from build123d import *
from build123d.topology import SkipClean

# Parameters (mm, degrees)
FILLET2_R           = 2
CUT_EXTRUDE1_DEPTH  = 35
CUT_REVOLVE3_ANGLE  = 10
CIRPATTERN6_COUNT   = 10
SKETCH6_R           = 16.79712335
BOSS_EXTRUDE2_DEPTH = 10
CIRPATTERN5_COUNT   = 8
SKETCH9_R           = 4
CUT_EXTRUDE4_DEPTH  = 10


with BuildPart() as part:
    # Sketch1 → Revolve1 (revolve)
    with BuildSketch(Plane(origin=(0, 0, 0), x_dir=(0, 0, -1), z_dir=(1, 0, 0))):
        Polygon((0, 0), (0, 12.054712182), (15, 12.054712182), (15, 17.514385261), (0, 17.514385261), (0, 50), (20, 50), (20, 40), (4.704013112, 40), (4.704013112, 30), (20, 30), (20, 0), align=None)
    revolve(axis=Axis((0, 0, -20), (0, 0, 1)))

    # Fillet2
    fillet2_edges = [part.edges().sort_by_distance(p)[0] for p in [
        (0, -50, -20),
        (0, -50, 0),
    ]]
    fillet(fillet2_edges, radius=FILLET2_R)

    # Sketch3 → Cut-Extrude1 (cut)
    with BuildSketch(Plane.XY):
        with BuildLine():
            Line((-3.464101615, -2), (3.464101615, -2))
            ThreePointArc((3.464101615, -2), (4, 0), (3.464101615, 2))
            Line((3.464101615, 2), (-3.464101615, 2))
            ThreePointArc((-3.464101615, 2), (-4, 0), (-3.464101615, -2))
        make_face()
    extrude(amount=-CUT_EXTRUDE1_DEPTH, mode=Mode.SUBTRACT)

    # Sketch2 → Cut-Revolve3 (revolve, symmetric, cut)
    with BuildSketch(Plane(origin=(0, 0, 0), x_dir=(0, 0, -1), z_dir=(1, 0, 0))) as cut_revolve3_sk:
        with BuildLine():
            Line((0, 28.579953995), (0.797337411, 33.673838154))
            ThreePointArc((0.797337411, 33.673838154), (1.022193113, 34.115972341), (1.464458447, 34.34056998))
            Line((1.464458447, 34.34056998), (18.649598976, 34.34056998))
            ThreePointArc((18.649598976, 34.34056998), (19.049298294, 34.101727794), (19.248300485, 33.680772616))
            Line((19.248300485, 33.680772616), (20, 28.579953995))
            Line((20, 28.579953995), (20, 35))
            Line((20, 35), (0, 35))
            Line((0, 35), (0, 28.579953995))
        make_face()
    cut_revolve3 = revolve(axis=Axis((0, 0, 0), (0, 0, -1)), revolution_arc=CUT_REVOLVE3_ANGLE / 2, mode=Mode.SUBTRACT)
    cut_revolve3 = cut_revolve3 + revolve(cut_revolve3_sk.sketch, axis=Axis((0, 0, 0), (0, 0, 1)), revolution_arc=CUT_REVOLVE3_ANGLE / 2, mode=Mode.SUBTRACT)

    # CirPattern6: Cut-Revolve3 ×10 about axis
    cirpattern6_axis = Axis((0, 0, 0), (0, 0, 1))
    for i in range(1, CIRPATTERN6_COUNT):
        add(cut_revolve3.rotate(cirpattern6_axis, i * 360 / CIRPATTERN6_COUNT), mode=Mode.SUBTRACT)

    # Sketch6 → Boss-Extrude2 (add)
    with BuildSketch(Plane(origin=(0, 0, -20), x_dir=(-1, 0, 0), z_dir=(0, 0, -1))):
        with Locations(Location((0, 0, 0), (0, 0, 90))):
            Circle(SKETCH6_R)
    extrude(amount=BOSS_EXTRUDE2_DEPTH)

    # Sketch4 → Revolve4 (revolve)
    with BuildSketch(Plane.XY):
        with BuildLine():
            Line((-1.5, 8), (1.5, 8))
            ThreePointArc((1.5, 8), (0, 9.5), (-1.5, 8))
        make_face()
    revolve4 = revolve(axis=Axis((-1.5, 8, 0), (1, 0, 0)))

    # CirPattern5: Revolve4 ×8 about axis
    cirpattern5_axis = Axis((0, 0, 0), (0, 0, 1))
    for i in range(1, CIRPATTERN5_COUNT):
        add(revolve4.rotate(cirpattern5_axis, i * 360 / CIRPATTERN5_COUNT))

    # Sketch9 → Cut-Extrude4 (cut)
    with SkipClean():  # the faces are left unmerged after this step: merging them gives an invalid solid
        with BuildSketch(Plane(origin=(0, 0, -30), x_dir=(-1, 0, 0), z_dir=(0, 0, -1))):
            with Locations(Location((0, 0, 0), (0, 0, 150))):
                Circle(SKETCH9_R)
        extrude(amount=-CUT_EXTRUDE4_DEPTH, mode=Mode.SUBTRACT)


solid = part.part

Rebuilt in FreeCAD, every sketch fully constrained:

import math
import FreeCAD as App
import Part
import Sketcher


def edges_at(feature, points):
    """Names of the edges that pass closest to the given points."""
    edges = feature.Shape.Edges
    near = lambda p: min(range(len(edges)), key=lambda i: edges[i].distToShape(Part.Vertex(*p))[0])
    return sorted({f"Edge{near(p) + 1}" for p in points})

doc = App.newDocument("Part")
body = doc.addObject("PartDesign::Body", "Body")

# Sketch on YZ plane
sketch1 = body.newObject("Sketcher::SketchObject", "Sketch")
sketch1.AttachmentSupport = (doc.getObject("YZ_Plane"), [""])
sketch1.MapMode = "FlatFace"
sketch1.addGeometry([
    Part.LineSegment(App.Vector(12, 0, 0), App.Vector(0, 0, 0)),  # 0
    Part.LineSegment(App.Vector(0, 0, 0), App.Vector(0, -20, 0)),  # 1
    Part.LineSegment(App.Vector(0, -20, 0), App.Vector(30, -20, 0)),  # 2
    Part.LineSegment(App.Vector(30, -20, 0), App.Vector(30, -5, 0)),  # 3
    Part.LineSegment(App.Vector(30, -5, 0), App.Vector(40, -5, 0)),  # 4
    Part.LineSegment(App.Vector(40, -5, 0), App.Vector(40, -20, 0)),  # 5
    Part.LineSegment(App.Vector(40, -20, 0), App.Vector(50, -20, 0)),  # 6
    Part.LineSegment(App.Vector(50, -20, 0), App.Vector(50, 0, 0)),  # 7
    Part.LineSegment(App.Vector(50, 0, 0), App.Vector(18, 0, 0)),  # 8
    Part.LineSegment(App.Vector(18, 0, 0), App.Vector(18, -15, 0)),  # 9
    Part.LineSegment(App.Vector(18, -15, 0), App.Vector(12, -15, 0)),  # 10
    Part.LineSegment(App.Vector(12, -15, 0), App.Vector(12, 0, 0)),  # 11
], False)
sketch1.addConstraint([
    Sketcher.Constraint("Coincident", 0, 2, 1, 1),
    Sketcher.Constraint("Coincident", 1, 2, 2, 1),
    Sketcher.Constraint("Coincident", 2, 2, 3, 1),
    Sketcher.Constraint("Coincident", 3, 2, 4, 1),
    Sketcher.Constraint("Coincident", 4, 2, 5, 1),
    Sketcher.Constraint("Coincident", 5, 2, 6, 1),
    Sketcher.Constraint("Coincident", 6, 2, 7, 1),
    Sketcher.Constraint("Coincident", 7, 2, 8, 1),
    Sketcher.Constraint("Coincident", 8, 2, 9, 1),
    Sketcher.Constraint("Coincident", 9, 2, 10, 1),
    Sketcher.Constraint("Coincident", 10, 2, 11, 1),
    Sketcher.Constraint("Coincident", 11, 2, 0, 1),
    Sketcher.Constraint("Horizontal", 0),
    Sketcher.Constraint("Vertical", 1),
    Sketcher.Constraint("Horizontal", 2),
    Sketcher.Constraint("Vertical", 3),
    Sketcher.Constraint("Horizontal", 4),
    Sketcher.Constraint("Vertical", 5),
    Sketcher.Constraint("Horizontal", 6),
    Sketcher.Constraint("Vertical", 7),
    Sketcher.Constraint("Horizontal", 8),
    Sketcher.Constraint("Vertical", 9),
    Sketcher.Constraint("Horizontal", 10),
    Sketcher.Constraint("Vertical", 11),
    Sketcher.Constraint("Coincident", 0, 2, -1, 1),
    Sketcher.Constraint("PointOnObject", 7, 2, -1),
    Sketcher.Constraint("Horizontal", 2, 2, 5, 2),
    Sketcher.Constraint("Equal", 4, 6),
    Sketcher.Constraint("DistanceX", 2, 1, 2, 2, 30.0),
    Sketcher.Constraint("DistanceX", 4, 1, 4, 2, 10.0),
    Sketcher.Constraint("DistanceY", 1, 2, 1, 1, 20.0),
    Sketcher.Constraint("DistanceY", 9, 2, 9, 1, 15.0),
    Sketcher.Constraint("DistanceX", 0, 2, 0, 1, 12.054712),
    Sketcher.Constraint("DistanceX", 8, 2, 8, 1, 32.485615),
    Sketcher.Constraint("DistanceY", 3, 1, 3, 2, 15.295987),
])
revolution = body.newObject("PartDesign::Revolution", "Revolution")
revolution.Profile = sketch1
revolution.ReferenceAxis = (sketch1, ["V_Axis"])
revolution.Angle = 360
doc.recompute()

fillet = body.newObject("PartDesign::Fillet", "Fillet")
fillet.Base = (revolution, edges_at(revolution, [(0, -50, -20), (0, -50, 0)]))
fillet.Radius = 2

# Sketch on XY plane
sketch2 = body.newObject("Sketcher::SketchObject", "Sketch001")
sketch2.AttachmentSupport = (doc.getObject("XY_Plane"), [""])
sketch2.MapMode = "FlatFace"
sketch2.addGeometry([
    Part.LineSegment(App.Vector(-3.5, -2, 0), App.Vector(3.5, -2, 0)),
    Part.ArcOfCircle(Part.Circle(App.Vector(0, 0, 0), App.Vector(0, 0, 1), 4), math.radians(-30), math.radians(30)),
    Part.LineSegment(App.Vector(3.5, 2, 0), App.Vector(-3.5, 2, 0)),
    Part.ArcOfCircle(Part.Circle(App.Vector(0, 0, 0), App.Vector(0, 0, 1), 4), math.radians(150), math.radians(210)),
], False)
sketch2.addConstraint([
    Sketcher.Constraint("Coincident", 0, 2, 1, 1),
    Sketcher.Constraint("Coincident", 1, 2, 2, 1),
    Sketcher.Constraint("Coincident", 2, 2, 3, 1),
    Sketcher.Constraint("Coincident", 3, 2, 0, 1),
    Sketcher.Constraint("Horizontal", 0),
    Sketcher.Constraint("Horizontal", 2),
    Sketcher.Constraint("Coincident", 1, 3, -1, 1),
    Sketcher.Constraint("Coincident", 3, 3, -1, 1),
    Sketcher.Constraint("Equal", 1, 3),
    Sketcher.Constraint("Vertical", 0, 2, 1, 2),
    Sketcher.Constraint("Radius", 1, 4.0),
    Sketcher.Constraint("DistanceY", 0, 2, -1, 1, 2.0),
])
pocket1 = body.newObject("PartDesign::Pocket", "Pocket")
pocket1.Profile = sketch2
pocket1.Length = 35

# Sketch on YZ plane
sketch3 = body.newObject("Sketcher::SketchObject", "Sketch002")
sketch3.AttachmentSupport = (doc.getObject("YZ_Plane"), [""])
sketch3.MapMode = "FlatFace"
sketch3.addGeometry([
    Part.LineSegment(App.Vector(28.6, 0, 0), App.Vector(33.7, -0.8, 0)),  # 0
    Part.ArcOfCircle(Part.Circle(App.Vector(33.6, -1.6, 0), App.Vector(0, 0, 1), 0.8), math.radians(9), math.radians(81)),  # 1
    Part.LineSegment(App.Vector(34.3, -1.5, 0), App.Vector(34.3, -18.6, 0)),  # 2
    Part.ArcOfCircle(Part.Circle(App.Vector(33.6, -18.5, 0), App.Vector(0, 0, 1), 0.8), math.radians(-82), math.radians(-14)),  # 3
    Part.LineSegment(App.Vector(33.7, -19.2, 0), App.Vector(28.6, -20, 0)),  # 4
    Part.LineSegment(App.Vector(28.6, -20, 0), App.Vector(35, -20, 0)),  # 5
    Part.LineSegment(App.Vector(35, -20, 0), App.Vector(35, 0, 0)),  # 6
    Part.LineSegment(App.Vector(35, 0, 0), App.Vector(28.6, 0, 0)),  # 7
], False)
sketch3.addConstraint([
    Sketcher.Constraint("Tangent", 0, 2, 1, 2),
    Sketcher.Constraint("Coincident", 1, 1, 2, 1),
    Sketcher.Constraint("Coincident", 2, 2, 3, 2),
    Sketcher.Constraint("Tangent", 3, 1, 4, 1),
    Sketcher.Constraint("Coincident", 4, 2, 5, 1),
    Sketcher.Constraint("Coincident", 5, 2, 6, 1),
    Sketcher.Constraint("Coincident", 6, 2, 7, 1),
    Sketcher.Constraint("Coincident", 7, 2, 0, 1),
    Sketcher.Constraint("Vertical", 2),
    Sketcher.Constraint("Horizontal", 5),
    Sketcher.Constraint("Vertical", 6),
    Sketcher.Constraint("Horizontal", 7),
    Sketcher.Constraint("Equal", 1, 3),
    Sketcher.Constraint("PointOnObject", 6, 2, -1),
    Sketcher.Constraint("Vertical", 4, 2, 7, 2),
    Sketcher.Constraint("Equal", 0, 4),
    Sketcher.Constraint("Radius", 1, 0.8),
    Sketcher.Constraint("DistanceY", 6, 1, 6, 2, 20.0),
    Sketcher.Constraint("DistanceX", -1, 1, 5, 2, 35.0),
    Sketcher.Constraint("DistanceY", 2, 2, 2, 1, 17.185141),
    Sketcher.Constraint("DistanceY", 2, 2, -1, 1, 18.649599),
    Sketcher.Constraint("DistanceY", 3, 1, -1, 1, 19.2483),
    Sketcher.Constraint("DistanceX", 3, 3, 0, 2, 0.109701),
    Sketcher.Constraint("DistanceX", 5, 1, 5, 2, 6.420046),
])
groove = body.newObject("PartDesign::Groove", "Groove")
groove.Profile = sketch3
groove.ReferenceAxis = (sketch3, ["V_Axis"])
groove.Angle = 5
groove.Reversed = True

# Sketch on YZ plane
sketch4 = body.newObject("Sketcher::SketchObject", "Sketch003")
sketch4.AttachmentSupport = (doc.getObject("YZ_Plane"), [""])
sketch4.MapMode = "FlatFace"
sketch4.addGeometry([
    Part.LineSegment(App.Vector(28.6, 0, 0), App.Vector(33.7, -0.8, 0)),  # 0
    Part.ArcOfCircle(Part.Circle(App.Vector(33.6, -1.6, 0), App.Vector(0, 0, 1), 0.8), math.radians(9), math.radians(81)),  # 1
    Part.LineSegment(App.Vector(34.3, -1.5, 0), App.Vector(34.3, -18.6, 0)),  # 2
    Part.ArcOfCircle(Part.Circle(App.Vector(33.6, -18.5, 0), App.Vector(0, 0, 1), 0.8), math.radians(-82), math.radians(-14)),  # 3
    Part.LineSegment(App.Vector(33.7, -19.2, 0), App.Vector(28.6, -20, 0)),  # 4
    Part.LineSegment(App.Vector(28.6, -20, 0), App.Vector(35, -20, 0)),  # 5
    Part.LineSegment(App.Vector(35, -20, 0), App.Vector(35, 0, 0)),  # 6
    Part.LineSegment(App.Vector(35, 0, 0), App.Vector(28.6, 0, 0)),  # 7
], False)
sketch4.addConstraint([
    Sketcher.Constraint("Tangent", 0, 2, 1, 2),
    Sketcher.Constraint("Coincident", 1, 1, 2, 1),
    Sketcher.Constraint("Coincident", 2, 2, 3, 2),
    Sketcher.Constraint("Tangent", 3, 1, 4, 1),
    Sketcher.Constraint("Coincident", 4, 2, 5, 1),
    Sketcher.Constraint("Coincident", 5, 2, 6, 1),
    Sketcher.Constraint("Coincident", 6, 2, 7, 1),
    Sketcher.Constraint("Coincident", 7, 2, 0, 1),
    Sketcher.Constraint("Vertical", 2),
    Sketcher.Constraint("Horizontal", 5),
    Sketcher.Constraint("Vertical", 6),
    Sketcher.Constraint("Horizontal", 7),
    Sketcher.Constraint("Equal", 1, 3),
    Sketcher.Constraint("PointOnObject", 6, 2, -1),
    Sketcher.Constraint("Vertical", 4, 2, 7, 2),
    Sketcher.Constraint("Equal", 0, 4),
    Sketcher.Constraint("Radius", 1, 0.8),
    Sketcher.Constraint("DistanceY", 6, 1, 6, 2, 20.0),
    Sketcher.Constraint("DistanceX", -1, 1, 5, 2, 35.0),
    Sketcher.Constraint("DistanceY", 2, 2, 2, 1, 17.185141),
    Sketcher.Constraint("DistanceY", 2, 2, -1, 1, 18.649599),
    Sketcher.Constraint("DistanceY", 3, 1, -1, 1, 19.2483),
    Sketcher.Constraint("DistanceX", 3, 3, 0, 2, 0.109701),
    Sketcher.Constraint("DistanceX", 5, 1, 5, 2, 6.420046),
])
groove2 = body.newObject("PartDesign::Groove", "Groove001")
groove2.Profile = sketch4
groove2.ReferenceAxis = (sketch4, ["V_Axis"])
groove2.Angle = 5
doc.recompute()

polarpattern = body.newObject("PartDesign::PolarPattern", "PolarPattern")
polarpattern.Originals = [groove, groove2]
polarpattern.Axis = (doc.getObject("Z_Axis"), [""])
polarpattern.Angle = 360
polarpattern.Occurrences = 10
body.Tip = polarpattern

# Sketch on XY plane
sketch5 = body.newObject("Sketcher::SketchObject", "Sketch004")
sketch5.AttachmentSupport = (doc.getObject("XY_Plane"), [""])
sketch5.MapMode = "FlatFace"
sketch5.AttachmentOffset = App.Placement(App.Vector(0, 0, -20), App.Rotation())
sketch5.addGeometry(Part.Circle(App.Vector(0, 0, 0), App.Vector(0, 0, 1), 17), False)
sketch5.addConstraint([
    Sketcher.Constraint("Coincident", 0, 3, -1, 1),
    Sketcher.Constraint("Diameter", 0, 33.594247),
])
pad1 = body.newObject("PartDesign::Pad", "Pad")
pad1.Profile = sketch5
pad1.Length = 10
pad1.Reversed = True

# Sketch on XY plane
sketch6 = body.newObject("Sketcher::SketchObject", "Sketch005")
sketch6.AttachmentSupport = (doc.getObject("XY_Plane"), [""])
sketch6.MapMode = "FlatFace"
sketch6.addGeometry([
    Part.LineSegment(App.Vector(-1.5, 8, 0), App.Vector(1.5, 8, 0)),
    Part.ArcOfCircle(Part.Circle(App.Vector(0, 8, 0), App.Vector(0, 0, 1), 1.5), math.radians(0), math.radians(180)),
], False)
sketch6.addGeometry(Part.LineSegment(App.Vector(-1.5, 8, 0), App.Vector(1.5, 8, 0)), True)  # axis
sketch6.addConstraint([
    Sketcher.Constraint("Coincident", 0, 1, 1, 2),
    Sketcher.Constraint("Coincident", 1, 1, 0, 2),
    Sketcher.Constraint("Horizontal", 0),
    Sketcher.Constraint("Horizontal", 2),
    Sketcher.Constraint("Coincident", 2, 1, 0, 1),
    Sketcher.Constraint("PointOnObject", 1, 3, -2),
    Sketcher.Constraint("Horizontal", 1, 3, 0, 1),
    Sketcher.Constraint("Equal", 0, 2),
    Sketcher.Constraint("Radius", 1, 1.5),
    Sketcher.Constraint("DistanceY", -1, 1, 1, 3, 8.0),
])
revolution2 = body.newObject("PartDesign::Revolution", "Revolution001")
revolution2.Profile = sketch6
revolution2.ReferenceAxis = (sketch6, ["Axis0"])
revolution2.Angle = 360
doc.recompute()

polarpattern2 = body.newObject("PartDesign::PolarPattern", "PolarPattern001")
polarpattern2.Originals = [revolution2]
polarpattern2.Axis = (doc.getObject("Z_Axis"), [""])
polarpattern2.Angle = 360
polarpattern2.Occurrences = 8
body.Tip = polarpattern2

# Sketch on XY plane
sketch7 = body.newObject("Sketcher::SketchObject", "Sketch006")
sketch7.AttachmentSupport = (doc.getObject("XY_Plane"), [""])
sketch7.MapMode = "FlatFace"
sketch7.AttachmentOffset = App.Placement(App.Vector(0, 0, -30), App.Rotation())
sketch7.addGeometry(Part.Circle(App.Vector(0, 0, 0), App.Vector(0, 0, 1), 4), False)
sketch7.addConstraint([
    Sketcher.Constraint("Coincident", 0, 3, -1, 1),
    Sketcher.Constraint("Diameter", 0, 8.0),
])
pocket2 = body.newObject("PartDesign::Pocket", "Pocket001")
pocket2.Profile = sketch7
pocket2.Length = 10
pocket2.Reversed = True

doc.recompute()
